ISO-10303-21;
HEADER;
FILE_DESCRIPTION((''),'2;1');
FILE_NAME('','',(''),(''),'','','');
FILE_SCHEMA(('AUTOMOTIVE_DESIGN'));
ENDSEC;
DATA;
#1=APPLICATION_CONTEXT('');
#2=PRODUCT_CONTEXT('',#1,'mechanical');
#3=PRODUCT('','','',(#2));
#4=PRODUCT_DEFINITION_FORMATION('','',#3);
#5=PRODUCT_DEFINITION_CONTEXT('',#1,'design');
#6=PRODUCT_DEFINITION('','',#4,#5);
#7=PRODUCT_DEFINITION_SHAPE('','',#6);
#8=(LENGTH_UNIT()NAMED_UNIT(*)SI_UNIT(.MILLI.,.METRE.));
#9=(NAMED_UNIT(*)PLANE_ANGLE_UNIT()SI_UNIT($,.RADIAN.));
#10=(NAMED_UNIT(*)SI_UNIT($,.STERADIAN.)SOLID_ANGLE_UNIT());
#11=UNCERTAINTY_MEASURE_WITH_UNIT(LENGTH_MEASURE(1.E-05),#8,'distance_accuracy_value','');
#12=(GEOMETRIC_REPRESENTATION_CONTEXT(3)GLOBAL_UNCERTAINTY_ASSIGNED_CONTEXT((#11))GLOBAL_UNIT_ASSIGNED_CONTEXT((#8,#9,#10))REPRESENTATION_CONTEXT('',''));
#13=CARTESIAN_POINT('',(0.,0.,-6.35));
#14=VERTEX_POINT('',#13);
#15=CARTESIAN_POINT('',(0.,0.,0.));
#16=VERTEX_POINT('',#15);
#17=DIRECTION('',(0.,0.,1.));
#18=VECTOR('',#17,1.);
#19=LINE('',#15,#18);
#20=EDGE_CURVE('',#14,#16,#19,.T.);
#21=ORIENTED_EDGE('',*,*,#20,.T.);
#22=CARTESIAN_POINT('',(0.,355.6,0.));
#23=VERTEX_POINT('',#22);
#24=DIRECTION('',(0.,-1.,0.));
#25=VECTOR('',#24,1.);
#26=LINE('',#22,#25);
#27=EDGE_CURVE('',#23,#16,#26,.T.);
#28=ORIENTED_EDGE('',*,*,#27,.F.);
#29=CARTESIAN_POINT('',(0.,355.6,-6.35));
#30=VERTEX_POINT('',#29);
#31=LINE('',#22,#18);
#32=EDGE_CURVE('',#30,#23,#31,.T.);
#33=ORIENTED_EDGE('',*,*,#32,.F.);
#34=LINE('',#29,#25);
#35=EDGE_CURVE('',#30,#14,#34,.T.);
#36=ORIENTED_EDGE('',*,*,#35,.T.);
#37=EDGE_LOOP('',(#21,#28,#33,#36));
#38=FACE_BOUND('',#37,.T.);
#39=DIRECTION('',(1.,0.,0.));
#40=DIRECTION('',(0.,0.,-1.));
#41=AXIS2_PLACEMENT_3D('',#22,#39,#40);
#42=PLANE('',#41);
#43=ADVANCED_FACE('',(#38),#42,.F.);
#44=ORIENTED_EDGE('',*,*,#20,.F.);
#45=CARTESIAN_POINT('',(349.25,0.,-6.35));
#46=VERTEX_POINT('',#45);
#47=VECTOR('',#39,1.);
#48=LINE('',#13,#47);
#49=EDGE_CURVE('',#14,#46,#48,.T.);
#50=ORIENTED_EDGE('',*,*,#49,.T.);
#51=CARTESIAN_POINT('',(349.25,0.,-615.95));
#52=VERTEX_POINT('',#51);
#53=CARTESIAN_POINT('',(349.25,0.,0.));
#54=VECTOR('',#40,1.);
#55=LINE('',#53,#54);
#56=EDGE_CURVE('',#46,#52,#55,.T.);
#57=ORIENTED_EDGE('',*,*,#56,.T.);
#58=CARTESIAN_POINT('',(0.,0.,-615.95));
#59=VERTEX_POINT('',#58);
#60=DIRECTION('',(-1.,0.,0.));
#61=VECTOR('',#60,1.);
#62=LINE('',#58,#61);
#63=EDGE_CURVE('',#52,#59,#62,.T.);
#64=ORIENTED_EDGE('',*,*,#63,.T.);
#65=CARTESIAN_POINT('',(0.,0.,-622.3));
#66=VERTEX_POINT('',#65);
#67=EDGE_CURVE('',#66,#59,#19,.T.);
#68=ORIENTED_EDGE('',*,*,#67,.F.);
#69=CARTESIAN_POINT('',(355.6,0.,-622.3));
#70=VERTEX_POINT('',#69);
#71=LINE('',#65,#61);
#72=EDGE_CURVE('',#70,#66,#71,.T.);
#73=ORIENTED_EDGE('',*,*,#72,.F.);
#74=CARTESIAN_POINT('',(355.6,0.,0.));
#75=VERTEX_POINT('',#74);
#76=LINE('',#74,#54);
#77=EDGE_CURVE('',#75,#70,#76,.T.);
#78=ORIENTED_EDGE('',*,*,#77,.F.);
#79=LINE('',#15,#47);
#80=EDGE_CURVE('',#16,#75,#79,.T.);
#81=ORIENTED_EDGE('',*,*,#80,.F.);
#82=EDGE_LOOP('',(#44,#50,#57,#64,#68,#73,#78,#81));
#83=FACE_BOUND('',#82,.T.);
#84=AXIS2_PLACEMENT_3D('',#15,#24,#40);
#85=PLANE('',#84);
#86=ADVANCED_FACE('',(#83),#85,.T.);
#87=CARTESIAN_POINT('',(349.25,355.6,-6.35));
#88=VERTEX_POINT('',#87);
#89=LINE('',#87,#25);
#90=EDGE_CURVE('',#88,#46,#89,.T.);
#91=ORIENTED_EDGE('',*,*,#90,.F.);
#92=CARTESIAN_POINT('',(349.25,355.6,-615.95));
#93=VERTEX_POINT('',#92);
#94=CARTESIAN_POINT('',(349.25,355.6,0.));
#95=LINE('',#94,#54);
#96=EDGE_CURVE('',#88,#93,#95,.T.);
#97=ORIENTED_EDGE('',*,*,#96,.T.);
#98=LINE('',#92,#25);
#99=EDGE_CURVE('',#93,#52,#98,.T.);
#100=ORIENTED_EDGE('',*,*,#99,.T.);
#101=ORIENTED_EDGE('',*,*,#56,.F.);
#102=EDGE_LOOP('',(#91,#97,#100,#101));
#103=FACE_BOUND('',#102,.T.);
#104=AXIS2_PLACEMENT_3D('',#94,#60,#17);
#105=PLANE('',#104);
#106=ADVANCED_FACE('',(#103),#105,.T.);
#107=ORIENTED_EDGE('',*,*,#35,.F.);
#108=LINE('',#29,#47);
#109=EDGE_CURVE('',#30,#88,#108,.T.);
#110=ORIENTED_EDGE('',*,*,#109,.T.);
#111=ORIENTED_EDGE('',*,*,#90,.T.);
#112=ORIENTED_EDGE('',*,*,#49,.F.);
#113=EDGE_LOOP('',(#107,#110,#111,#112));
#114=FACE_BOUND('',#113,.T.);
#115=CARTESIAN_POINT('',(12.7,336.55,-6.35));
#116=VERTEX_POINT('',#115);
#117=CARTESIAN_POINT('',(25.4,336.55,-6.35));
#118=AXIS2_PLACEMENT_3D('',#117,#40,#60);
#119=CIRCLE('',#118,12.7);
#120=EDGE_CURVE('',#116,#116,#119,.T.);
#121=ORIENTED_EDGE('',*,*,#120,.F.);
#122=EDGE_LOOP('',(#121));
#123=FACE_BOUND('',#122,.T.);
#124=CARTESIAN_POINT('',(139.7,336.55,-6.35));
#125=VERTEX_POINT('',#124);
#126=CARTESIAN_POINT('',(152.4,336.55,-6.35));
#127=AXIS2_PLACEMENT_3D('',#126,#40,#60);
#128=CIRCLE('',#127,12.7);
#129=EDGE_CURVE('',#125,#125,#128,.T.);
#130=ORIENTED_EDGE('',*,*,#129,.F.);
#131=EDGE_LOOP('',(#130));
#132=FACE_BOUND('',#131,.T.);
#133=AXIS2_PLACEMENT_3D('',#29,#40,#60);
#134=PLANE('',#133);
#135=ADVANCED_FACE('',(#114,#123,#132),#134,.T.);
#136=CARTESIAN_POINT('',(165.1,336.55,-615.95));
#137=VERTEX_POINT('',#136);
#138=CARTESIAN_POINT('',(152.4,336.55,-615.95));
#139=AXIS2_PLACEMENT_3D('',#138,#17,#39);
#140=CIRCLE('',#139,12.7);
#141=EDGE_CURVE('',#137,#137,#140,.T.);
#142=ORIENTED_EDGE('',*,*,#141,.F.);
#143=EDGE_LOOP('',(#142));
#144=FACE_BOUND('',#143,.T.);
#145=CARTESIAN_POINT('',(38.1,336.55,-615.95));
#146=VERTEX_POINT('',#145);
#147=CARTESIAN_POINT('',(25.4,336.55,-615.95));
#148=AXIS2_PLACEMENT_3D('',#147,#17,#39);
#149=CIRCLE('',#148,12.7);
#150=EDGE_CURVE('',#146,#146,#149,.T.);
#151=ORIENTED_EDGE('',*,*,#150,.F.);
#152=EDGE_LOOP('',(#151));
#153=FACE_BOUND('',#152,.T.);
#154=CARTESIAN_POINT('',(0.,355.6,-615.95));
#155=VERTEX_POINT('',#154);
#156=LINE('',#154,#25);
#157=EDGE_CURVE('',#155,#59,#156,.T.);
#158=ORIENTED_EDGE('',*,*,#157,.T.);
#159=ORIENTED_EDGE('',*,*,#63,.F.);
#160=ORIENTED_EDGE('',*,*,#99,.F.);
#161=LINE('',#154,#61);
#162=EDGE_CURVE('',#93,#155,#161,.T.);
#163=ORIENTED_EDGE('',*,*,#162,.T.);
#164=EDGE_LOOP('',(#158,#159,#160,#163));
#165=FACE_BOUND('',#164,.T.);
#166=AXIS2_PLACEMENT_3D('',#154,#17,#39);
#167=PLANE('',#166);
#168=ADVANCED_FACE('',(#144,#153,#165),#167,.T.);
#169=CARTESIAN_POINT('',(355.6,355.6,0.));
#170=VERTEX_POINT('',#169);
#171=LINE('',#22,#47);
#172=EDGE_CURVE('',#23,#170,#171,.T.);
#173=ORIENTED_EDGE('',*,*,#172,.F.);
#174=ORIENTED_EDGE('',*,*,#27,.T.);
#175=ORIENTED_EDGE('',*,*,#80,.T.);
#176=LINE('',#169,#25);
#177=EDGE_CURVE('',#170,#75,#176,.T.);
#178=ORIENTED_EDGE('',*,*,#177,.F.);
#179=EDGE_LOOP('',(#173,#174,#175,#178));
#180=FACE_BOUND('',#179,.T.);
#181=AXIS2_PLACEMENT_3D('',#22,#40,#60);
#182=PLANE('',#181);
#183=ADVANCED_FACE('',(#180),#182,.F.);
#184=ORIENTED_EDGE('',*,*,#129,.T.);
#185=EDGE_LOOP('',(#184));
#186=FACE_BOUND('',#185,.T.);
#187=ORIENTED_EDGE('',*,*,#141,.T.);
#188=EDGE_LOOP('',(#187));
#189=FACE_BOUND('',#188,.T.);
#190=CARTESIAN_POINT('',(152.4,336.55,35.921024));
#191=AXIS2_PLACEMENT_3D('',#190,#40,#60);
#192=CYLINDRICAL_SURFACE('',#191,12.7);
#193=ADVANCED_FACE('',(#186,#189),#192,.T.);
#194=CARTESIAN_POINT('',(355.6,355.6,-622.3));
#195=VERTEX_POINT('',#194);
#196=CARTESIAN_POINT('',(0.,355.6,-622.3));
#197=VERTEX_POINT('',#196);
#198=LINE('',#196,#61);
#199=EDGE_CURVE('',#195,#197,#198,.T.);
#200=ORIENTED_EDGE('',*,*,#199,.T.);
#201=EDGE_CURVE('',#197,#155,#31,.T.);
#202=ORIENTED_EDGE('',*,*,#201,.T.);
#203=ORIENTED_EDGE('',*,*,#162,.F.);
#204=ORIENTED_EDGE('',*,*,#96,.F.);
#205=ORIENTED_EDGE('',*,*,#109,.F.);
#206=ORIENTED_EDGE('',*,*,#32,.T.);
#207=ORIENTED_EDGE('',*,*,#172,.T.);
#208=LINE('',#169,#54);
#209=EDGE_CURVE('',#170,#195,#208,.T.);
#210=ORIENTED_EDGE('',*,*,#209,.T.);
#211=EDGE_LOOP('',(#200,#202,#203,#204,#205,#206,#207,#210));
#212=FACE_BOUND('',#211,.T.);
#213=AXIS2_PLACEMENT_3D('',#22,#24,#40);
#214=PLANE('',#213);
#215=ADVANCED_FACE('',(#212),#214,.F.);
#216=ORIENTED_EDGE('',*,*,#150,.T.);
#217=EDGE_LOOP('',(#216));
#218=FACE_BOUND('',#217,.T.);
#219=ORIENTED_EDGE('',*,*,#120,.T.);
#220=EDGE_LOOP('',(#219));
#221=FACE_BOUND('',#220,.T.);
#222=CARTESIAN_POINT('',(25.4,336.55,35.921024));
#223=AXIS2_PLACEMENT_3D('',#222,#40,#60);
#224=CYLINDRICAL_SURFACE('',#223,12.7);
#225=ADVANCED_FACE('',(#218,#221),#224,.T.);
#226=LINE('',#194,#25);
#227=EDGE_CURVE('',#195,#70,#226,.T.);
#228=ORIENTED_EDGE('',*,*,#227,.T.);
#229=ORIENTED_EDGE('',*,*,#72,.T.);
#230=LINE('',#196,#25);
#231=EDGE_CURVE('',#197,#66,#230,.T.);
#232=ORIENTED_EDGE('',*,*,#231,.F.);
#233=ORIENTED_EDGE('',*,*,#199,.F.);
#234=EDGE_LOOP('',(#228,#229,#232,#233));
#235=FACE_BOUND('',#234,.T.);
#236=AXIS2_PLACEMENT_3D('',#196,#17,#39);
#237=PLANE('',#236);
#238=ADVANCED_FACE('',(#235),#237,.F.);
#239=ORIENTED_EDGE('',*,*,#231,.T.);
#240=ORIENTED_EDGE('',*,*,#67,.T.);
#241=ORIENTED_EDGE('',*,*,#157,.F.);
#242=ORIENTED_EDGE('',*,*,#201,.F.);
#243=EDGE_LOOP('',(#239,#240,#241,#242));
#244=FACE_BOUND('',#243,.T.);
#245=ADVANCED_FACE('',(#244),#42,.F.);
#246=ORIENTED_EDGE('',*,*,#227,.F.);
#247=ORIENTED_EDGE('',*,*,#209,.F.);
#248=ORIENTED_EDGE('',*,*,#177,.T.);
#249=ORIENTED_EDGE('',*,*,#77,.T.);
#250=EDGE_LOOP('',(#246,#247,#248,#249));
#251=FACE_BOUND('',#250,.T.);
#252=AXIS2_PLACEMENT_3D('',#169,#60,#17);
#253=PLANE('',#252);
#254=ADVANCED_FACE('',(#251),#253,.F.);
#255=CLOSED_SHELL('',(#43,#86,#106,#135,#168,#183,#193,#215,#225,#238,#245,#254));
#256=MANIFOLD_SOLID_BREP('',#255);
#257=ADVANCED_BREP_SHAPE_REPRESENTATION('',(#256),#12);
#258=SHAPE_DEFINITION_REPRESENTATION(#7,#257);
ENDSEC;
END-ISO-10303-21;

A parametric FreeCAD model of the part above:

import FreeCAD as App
import Part
import Sketcher

V = App.Vector
Q = App.Units.Quantity


def faces_at(feature, points):
    """Names of the faces that lie closest to the given points."""
    faces = feature.Shape.Faces
    near = lambda p: min(range(len(faces)), key=lambda i: faces[i].distToShape(Part.Vertex(*p))[0])
    return sorted({f"Face{near(p) + 1}" for p in points})

doc = App.newDocument("Part")
params = doc.addObject("Spreadsheet::Sheet", "Params")
for row, (alias, value) in enumerate([
    ("sketch1_width", "14 in"),
    ("sketch1_height", "24.5 in"),
    ("pad1_length", "14 in"),
    ("thickness_wall", "0.25 in"),
    ("sketch2_diameter", "1 in"),
    ("pad2_length", "24.5 in"),
], start=1):
    params.set(f"A{row}", alias)
    params.set(f"B{row}", "=" + value)
    params.setAlias(f"B{row}", alias)

body = doc.addObject("PartDesign::Body", "Body")

sketch1 = body.newObject("Sketcher::SketchObject", "Sketch")
sketch1.AttachmentSupport = (doc.getObject("XZ_Plane"), [""])
sketch1.MapMode = "FlatFace"
sketch1.addGeometry([
    Part.LineSegment(V(0, -622, 0), V(0, 0, 0)),
    Part.LineSegment(V(0, 0, 0), V(356, 0, 0)),
    Part.LineSegment(V(356, 0, 0), V(356, -622, 0)),
    Part.LineSegment(V(356, -622, 0), V(0, -622, 0)),
], False)
sketch1.addConstraint([
    Sketcher.Constraint("Coincident", 0, 2, 1, 1),
    Sketcher.Constraint("Coincident", 1, 2, 2, 1),
    Sketcher.Constraint("Coincident", 2, 2, 3, 1),
    Sketcher.Constraint("Coincident", 3, 2, 0, 1),
    Sketcher.Constraint("Vertical", 0),
    Sketcher.Constraint("Horizontal", 1),
    Sketcher.Constraint("Vertical", 2),
    Sketcher.Constraint("Horizontal", 3),
    Sketcher.Constraint("Coincident", 0, 2, -1, 1),
    Sketcher.Constraint("DistanceX", 1, 1, 1, 2, Q("14 in")),
    Sketcher.Constraint("DistanceY", 0, 1, 0, 2, Q("24.5 in")),
])
sketch1.setExpression("Constraints[9]", "Params.sketch1_width")
sketch1.setExpression("Constraints[10]", "Params.sketch1_height")
pad1 = body.newObject("PartDesign::Pad", "Pad")
pad1.Profile = sketch1
pad1.setExpression("Length", "Params.pad1_length")
pad1.Reversed = True
doc.recompute()

thickness = body.newObject("PartDesign::Thickness", "Thickness")
thickness.Base = (pad1, faces_at(pad1, [(177.8, 355.6, -311.15), (177.8, 0, -311.15), (0, 177.8, -311.15)]))
thickness.setExpression("Value", "Params.thickness_wall")
thickness.Reversed = True
thickness.Join = "Intersection"

sketch2 = body.newObject("Sketcher::SketchObject", "Sketch001")
sketch2.AttachmentSupport = (doc.getObject("XY_Plane"), [""])
sketch2.MapMode = "FlatFace"
sketch2.AttachmentOffset = App.Placement(V(0, 0, -24.5 * 25.4), App.Rotation())
sketch2.addGeometry([
    Part.Circle(V(152, 337, 0), V(0, 0, 1), 13),
    Part.Circle(V(25, 337, 0), V(0, 0, 1), 13),
], False)
sketch2.addConstraint([
    Sketcher.Constraint("Equal", 0, 1),
    Sketcher.Constraint("Horizontal", 0, 3, 1, 3),
    Sketcher.Constraint("Diameter", 0, Q("1 in")),
    Sketcher.Constraint("DistanceX", -1, 1, 0, 3, Q("6 in")),
    Sketcher.Constraint("DistanceX", -1, 1, 1, 3, Q("1 in")),
    Sketcher.Constraint("DistanceY", -1, 1, 0, 3, Q("13.25 in")),
])
sketch2.setExpression("Constraints[2]", "Params.sketch2_diameter")
pad2 = body.newObject("PartDesign::Pad", "Pad001")
pad2.Profile = sketch2
pad2.setExpression("Length", "Params.pad2_length")

doc.recompute()
